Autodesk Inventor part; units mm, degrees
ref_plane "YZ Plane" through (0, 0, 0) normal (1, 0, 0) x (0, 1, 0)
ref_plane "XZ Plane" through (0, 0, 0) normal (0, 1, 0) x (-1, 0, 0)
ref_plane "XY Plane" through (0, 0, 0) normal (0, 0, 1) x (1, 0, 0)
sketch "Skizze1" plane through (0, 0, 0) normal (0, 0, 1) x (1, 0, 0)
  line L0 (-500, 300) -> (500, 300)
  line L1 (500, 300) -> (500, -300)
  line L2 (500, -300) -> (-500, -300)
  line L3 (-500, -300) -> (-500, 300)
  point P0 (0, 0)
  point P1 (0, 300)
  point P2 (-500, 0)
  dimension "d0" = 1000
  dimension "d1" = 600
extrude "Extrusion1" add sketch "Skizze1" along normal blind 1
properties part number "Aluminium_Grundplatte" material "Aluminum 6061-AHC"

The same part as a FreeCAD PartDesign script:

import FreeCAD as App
import Part
import Sketcher

doc = App.newDocument("Part")
body = doc.addObject("PartDesign::Body", "Body")

# Sketch on XY plane
sketch1 = body.newObject("Sketcher::SketchObject", "Sketch")
sketch1.AttachmentSupport = (doc.getObject("XY_Plane"), [""])
sketch1.MapMode = "FlatFace"
sketch1.addGeometry([
    Part.LineSegment(App.Vector(500, 300, 0), App.Vector(-500, 300, 0)),
    Part.LineSegment(App.Vector(-500, 300, 0), App.Vector(-500, -300, 0)),
    Part.LineSegment(App.Vector(-500, -300, 0), App.Vector(500, -300, 0)),
    Part.LineSegment(App.Vector(500, -300, 0), App.Vector(500, 300, 0)),
], False)
sketch1.addConstraint([
    Sketcher.Constraint("Coincident", 0, 2, 1, 1),
    Sketcher.Constraint("Coincident", 1, 2, 2, 1),
    Sketcher.Constraint("Coincident", 2, 2, 3, 1),
    Sketcher.Constraint("Coincident", 3, 2, 0, 1),
    Sketcher.Constraint("Horizontal", 0),
    Sketcher.Constraint("Vertical", 1),
    Sketcher.Constraint("Horizontal", 2),
    Sketcher.Constraint("Vertical", 3),
    Sketcher.Constraint("Symmetric", 0, 2, 2, 2, -1, 1),
    Sketcher.Constraint("DistanceX", 0, 2, 0, 1, 1000.0),
    Sketcher.Constraint("DistanceY", 1, 2, 1, 1, 600.0),
])
pad1 = body.newObject("PartDesign::Pad", "Pad")
pad1.Profile = sketch1
pad1.Length = 1

doc.recompute()
